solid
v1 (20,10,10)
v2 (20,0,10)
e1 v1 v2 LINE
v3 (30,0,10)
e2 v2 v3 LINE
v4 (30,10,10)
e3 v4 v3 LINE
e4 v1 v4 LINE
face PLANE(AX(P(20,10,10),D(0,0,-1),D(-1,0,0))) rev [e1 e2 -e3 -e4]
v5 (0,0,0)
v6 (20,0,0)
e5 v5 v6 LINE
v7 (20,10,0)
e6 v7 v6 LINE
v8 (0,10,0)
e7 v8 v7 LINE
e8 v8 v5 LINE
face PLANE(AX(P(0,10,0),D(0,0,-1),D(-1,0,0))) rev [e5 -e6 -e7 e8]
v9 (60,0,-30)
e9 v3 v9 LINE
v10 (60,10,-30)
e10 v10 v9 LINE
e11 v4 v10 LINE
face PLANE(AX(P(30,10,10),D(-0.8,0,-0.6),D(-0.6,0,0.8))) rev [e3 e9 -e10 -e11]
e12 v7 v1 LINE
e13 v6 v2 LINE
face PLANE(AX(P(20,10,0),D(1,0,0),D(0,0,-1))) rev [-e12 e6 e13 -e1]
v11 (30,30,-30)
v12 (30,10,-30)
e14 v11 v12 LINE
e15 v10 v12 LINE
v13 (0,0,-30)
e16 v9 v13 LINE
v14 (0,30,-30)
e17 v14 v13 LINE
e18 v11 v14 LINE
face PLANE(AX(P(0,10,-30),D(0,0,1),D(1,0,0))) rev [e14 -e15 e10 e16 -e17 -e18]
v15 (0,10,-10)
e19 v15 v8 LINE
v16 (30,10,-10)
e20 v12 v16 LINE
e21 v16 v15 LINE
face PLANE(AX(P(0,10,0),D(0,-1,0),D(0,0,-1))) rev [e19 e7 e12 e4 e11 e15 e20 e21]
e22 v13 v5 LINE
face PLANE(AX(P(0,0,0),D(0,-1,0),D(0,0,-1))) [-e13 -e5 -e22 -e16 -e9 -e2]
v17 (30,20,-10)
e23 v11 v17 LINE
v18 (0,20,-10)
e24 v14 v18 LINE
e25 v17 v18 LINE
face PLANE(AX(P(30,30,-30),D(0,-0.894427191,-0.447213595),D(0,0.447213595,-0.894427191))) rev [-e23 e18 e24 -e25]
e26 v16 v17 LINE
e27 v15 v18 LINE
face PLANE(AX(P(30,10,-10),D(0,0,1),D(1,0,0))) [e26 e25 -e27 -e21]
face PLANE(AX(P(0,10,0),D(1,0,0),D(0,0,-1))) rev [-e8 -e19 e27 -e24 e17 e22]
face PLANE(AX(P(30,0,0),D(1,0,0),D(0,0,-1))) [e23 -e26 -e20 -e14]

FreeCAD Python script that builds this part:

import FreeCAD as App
import Part
import Sketcher

V = App.Vector

doc = App.newDocument("Part")
body = doc.addObject("PartDesign::Body", "Body")

sketch1 = body.newObject("Sketcher::SketchObject", "Sketch")
sketch1.AttachmentSupport = (doc.getObject("XZ_Plane"), [""])
sketch1.MapMode = "FlatFace"
sketch1.addGeometry(Part.LineSegment(V(0, 0, 0), V(20, 0, 0)), False)
sketch1.addGeometry(Part.LineSegment(V(20, 0, 0), V(20, 10, 0)), False)
sketch1.addGeometry(Part.LineSegment(V(20, 10, 0), V(30, 10, 0)), False)
sketch1.addGeometry(Part.LineSegment(V(30, 10, 0), V(60, -30, 0)), False)
sketch1.addGeometry(Part.LineSegment(V(60, -30, 0), V(0, -30, 0)), False)
sketch1.addGeometry(Part.LineSegment(V(0, -30, 0), V(0, 0, 0)), False)
sketch1.addConstraint(Sketcher.Constraint("Coincident", 0, 2, 1, 1))
sketch1.addConstraint(Sketcher.Constraint("Coincident", 1, 2, 2, 1))
sketch1.addConstraint(Sketcher.Constraint("Coincident", 2, 2, 3, 1))
sketch1.addConstraint(Sketcher.Constraint("Coincident", 3, 2, 4, 1))
sketch1.addConstraint(Sketcher.Constraint("Coincident", 4, 2, 5, 1))
sketch1.addConstraint(Sketcher.Constraint("Coincident", 5, 2, 0, 1))
sketch1.addConstraint(Sketcher.Constraint("Horizontal", 0))
sketch1.addConstraint(Sketcher.Constraint("Vertical", 1))
sketch1.addConstraint(Sketcher.Constraint("Horizontal", 2))
sketch1.addConstraint(Sketcher.Constraint("Horizontal", 4))
sketch1.addConstraint(Sketcher.Constraint("Vertical", 5))
sketch1.addConstraint(Sketcher.Constraint("Coincident", 5, 2, -1, 1))
sketch1.addConstraint(Sketcher.Constraint("Equal", 2, 1))
sketch1.addConstraint(Sketcher.Constraint("DistanceX", 0, 1, 0, 2, 20.0))
sketch1.addConstraint(Sketcher.Constraint("DistanceX", 2, 1, 2, 2, 10.0))
sketch1.addConstraint(Sketcher.Constraint("DistanceX", 4, 2, 4, 1, 60.0))
sketch1.addConstraint(Sketcher.Constraint("DistanceY", 5, 1, 5, 2, 30.0))
pad1 = body.newObject("PartDesign::Pad", "Pad")
pad1.Profile = sketch1
pad1.Length = 10
pad1.Reversed = True

sketch2 = body.newObject("Sketcher::SketchObject", "Sketch001")
sketch2.AttachmentSupport = (doc.getObject("YZ_Plane"), [""])
sketch2.MapMode = "FlatFace"
sketch2.addGeometry(Part.LineSegment(V(20, -30, 0), V(10, -30, 0)), False)
sketch2.addGeometry(Part.LineSegment(V(10, -30, 0), V(10, -10, 0)), False)
sketch2.addGeometry(Part.LineSegment(V(10, -10, 0), V(20, -10, 0)), False)
sketch2.addGeometry(Part.LineSegment(V(20, -10, 0), V(20, -30, 0)), False)
sketch2.addConstraint(Sketcher.Constraint("Coincident", 0, 2, 1, 1))
sketch2.addConstraint(Sketcher.Constraint("Coincident", 1, 2, 2, 1))
sketch2.addConstraint(Sketcher.Constraint("Coincident", 2, 2, 3, 1))
sketch2.addConstraint(Sketcher.Constraint("Coincident", 3, 2, 0, 1))
sketch2.addConstraint(Sketcher.Constraint("Horizontal", 0))
sketch2.addConstraint(Sketcher.Constraint("Vertical", 1))
sketch2.addConstraint(Sketcher.Constraint("Horizontal", 2))
sketch2.addConstraint(Sketcher.Constraint("Vertical", 3))
sketch2.addConstraint(Sketcher.Constraint("DistanceX", 0, 2, 0, 1, 10.0))
sketch2.addConstraint(Sketcher.Constraint("DistanceY", 1, 1, 1, 2, 20.0))
sketch2.addConstraint(Sketcher.Constraint("DistanceX", -1, 1, 0, 2, 10.0))
sketch2.addConstraint(Sketcher.Constraint("DistanceY", 0, 2, -1, 1, 30.0))
pad2 = body.newObject("PartDesign::Pad", "Pad001")
pad2.Profile = sketch2
pad2.Length = 30

sketch3 = body.newObject("Sketcher::SketchObject", "Sketch002")
sketch3.AttachmentSupport = (doc.getObject("YZ_Plane"), [""])
sketch3.MapMode = "FlatFace"
sketch3.addGeometry(Part.LineSegment(V(20, -30, 0), V(30, -30, 0)), False)
sketch3.addGeometry(Part.LineSegment(V(30, -30, 0), V(20, -10, 0)), False)
sketch3.addGeometry(Part.LineSegment(V(20, -10, 0), V(20, -30, 0)), False)
sketch3.addConstraint(Sketcher.Constraint("Coincident", 0, 2, 1, 1))
sketch3.addConstraint(Sketcher.Constraint("Coincident", 1, 2, 2, 1))
sketch3.addConstraint(Sketcher.Constraint("Coincident", 2, 2, 0, 1))
sketch3.addConstraint(Sketcher.Constraint("Horizontal", 0))
sketch3.addConstraint(Sketcher.Constraint("Vertical", 2))
sketch3.addConstraint(Sketcher.Constraint("DistanceX", 0, 1, 0, 2, 10.0))
sketch3.addConstraint(Sketcher.Constraint("DistanceY", 2, 2, 2, 1, 20.0))
sketch3.addConstraint(Sketcher.Constraint("DistanceX", -1, 1, 0, 2, 30.0))
sketch3.addConstraint(Sketcher.Constraint("DistanceY", 0, 2, -1, 1, 30.0))
pad3 = body.newObject("PartDesign::Pad", "Pad002")
pad3.Profile = sketch3
pad3.Length = 30

doc.recompute()
